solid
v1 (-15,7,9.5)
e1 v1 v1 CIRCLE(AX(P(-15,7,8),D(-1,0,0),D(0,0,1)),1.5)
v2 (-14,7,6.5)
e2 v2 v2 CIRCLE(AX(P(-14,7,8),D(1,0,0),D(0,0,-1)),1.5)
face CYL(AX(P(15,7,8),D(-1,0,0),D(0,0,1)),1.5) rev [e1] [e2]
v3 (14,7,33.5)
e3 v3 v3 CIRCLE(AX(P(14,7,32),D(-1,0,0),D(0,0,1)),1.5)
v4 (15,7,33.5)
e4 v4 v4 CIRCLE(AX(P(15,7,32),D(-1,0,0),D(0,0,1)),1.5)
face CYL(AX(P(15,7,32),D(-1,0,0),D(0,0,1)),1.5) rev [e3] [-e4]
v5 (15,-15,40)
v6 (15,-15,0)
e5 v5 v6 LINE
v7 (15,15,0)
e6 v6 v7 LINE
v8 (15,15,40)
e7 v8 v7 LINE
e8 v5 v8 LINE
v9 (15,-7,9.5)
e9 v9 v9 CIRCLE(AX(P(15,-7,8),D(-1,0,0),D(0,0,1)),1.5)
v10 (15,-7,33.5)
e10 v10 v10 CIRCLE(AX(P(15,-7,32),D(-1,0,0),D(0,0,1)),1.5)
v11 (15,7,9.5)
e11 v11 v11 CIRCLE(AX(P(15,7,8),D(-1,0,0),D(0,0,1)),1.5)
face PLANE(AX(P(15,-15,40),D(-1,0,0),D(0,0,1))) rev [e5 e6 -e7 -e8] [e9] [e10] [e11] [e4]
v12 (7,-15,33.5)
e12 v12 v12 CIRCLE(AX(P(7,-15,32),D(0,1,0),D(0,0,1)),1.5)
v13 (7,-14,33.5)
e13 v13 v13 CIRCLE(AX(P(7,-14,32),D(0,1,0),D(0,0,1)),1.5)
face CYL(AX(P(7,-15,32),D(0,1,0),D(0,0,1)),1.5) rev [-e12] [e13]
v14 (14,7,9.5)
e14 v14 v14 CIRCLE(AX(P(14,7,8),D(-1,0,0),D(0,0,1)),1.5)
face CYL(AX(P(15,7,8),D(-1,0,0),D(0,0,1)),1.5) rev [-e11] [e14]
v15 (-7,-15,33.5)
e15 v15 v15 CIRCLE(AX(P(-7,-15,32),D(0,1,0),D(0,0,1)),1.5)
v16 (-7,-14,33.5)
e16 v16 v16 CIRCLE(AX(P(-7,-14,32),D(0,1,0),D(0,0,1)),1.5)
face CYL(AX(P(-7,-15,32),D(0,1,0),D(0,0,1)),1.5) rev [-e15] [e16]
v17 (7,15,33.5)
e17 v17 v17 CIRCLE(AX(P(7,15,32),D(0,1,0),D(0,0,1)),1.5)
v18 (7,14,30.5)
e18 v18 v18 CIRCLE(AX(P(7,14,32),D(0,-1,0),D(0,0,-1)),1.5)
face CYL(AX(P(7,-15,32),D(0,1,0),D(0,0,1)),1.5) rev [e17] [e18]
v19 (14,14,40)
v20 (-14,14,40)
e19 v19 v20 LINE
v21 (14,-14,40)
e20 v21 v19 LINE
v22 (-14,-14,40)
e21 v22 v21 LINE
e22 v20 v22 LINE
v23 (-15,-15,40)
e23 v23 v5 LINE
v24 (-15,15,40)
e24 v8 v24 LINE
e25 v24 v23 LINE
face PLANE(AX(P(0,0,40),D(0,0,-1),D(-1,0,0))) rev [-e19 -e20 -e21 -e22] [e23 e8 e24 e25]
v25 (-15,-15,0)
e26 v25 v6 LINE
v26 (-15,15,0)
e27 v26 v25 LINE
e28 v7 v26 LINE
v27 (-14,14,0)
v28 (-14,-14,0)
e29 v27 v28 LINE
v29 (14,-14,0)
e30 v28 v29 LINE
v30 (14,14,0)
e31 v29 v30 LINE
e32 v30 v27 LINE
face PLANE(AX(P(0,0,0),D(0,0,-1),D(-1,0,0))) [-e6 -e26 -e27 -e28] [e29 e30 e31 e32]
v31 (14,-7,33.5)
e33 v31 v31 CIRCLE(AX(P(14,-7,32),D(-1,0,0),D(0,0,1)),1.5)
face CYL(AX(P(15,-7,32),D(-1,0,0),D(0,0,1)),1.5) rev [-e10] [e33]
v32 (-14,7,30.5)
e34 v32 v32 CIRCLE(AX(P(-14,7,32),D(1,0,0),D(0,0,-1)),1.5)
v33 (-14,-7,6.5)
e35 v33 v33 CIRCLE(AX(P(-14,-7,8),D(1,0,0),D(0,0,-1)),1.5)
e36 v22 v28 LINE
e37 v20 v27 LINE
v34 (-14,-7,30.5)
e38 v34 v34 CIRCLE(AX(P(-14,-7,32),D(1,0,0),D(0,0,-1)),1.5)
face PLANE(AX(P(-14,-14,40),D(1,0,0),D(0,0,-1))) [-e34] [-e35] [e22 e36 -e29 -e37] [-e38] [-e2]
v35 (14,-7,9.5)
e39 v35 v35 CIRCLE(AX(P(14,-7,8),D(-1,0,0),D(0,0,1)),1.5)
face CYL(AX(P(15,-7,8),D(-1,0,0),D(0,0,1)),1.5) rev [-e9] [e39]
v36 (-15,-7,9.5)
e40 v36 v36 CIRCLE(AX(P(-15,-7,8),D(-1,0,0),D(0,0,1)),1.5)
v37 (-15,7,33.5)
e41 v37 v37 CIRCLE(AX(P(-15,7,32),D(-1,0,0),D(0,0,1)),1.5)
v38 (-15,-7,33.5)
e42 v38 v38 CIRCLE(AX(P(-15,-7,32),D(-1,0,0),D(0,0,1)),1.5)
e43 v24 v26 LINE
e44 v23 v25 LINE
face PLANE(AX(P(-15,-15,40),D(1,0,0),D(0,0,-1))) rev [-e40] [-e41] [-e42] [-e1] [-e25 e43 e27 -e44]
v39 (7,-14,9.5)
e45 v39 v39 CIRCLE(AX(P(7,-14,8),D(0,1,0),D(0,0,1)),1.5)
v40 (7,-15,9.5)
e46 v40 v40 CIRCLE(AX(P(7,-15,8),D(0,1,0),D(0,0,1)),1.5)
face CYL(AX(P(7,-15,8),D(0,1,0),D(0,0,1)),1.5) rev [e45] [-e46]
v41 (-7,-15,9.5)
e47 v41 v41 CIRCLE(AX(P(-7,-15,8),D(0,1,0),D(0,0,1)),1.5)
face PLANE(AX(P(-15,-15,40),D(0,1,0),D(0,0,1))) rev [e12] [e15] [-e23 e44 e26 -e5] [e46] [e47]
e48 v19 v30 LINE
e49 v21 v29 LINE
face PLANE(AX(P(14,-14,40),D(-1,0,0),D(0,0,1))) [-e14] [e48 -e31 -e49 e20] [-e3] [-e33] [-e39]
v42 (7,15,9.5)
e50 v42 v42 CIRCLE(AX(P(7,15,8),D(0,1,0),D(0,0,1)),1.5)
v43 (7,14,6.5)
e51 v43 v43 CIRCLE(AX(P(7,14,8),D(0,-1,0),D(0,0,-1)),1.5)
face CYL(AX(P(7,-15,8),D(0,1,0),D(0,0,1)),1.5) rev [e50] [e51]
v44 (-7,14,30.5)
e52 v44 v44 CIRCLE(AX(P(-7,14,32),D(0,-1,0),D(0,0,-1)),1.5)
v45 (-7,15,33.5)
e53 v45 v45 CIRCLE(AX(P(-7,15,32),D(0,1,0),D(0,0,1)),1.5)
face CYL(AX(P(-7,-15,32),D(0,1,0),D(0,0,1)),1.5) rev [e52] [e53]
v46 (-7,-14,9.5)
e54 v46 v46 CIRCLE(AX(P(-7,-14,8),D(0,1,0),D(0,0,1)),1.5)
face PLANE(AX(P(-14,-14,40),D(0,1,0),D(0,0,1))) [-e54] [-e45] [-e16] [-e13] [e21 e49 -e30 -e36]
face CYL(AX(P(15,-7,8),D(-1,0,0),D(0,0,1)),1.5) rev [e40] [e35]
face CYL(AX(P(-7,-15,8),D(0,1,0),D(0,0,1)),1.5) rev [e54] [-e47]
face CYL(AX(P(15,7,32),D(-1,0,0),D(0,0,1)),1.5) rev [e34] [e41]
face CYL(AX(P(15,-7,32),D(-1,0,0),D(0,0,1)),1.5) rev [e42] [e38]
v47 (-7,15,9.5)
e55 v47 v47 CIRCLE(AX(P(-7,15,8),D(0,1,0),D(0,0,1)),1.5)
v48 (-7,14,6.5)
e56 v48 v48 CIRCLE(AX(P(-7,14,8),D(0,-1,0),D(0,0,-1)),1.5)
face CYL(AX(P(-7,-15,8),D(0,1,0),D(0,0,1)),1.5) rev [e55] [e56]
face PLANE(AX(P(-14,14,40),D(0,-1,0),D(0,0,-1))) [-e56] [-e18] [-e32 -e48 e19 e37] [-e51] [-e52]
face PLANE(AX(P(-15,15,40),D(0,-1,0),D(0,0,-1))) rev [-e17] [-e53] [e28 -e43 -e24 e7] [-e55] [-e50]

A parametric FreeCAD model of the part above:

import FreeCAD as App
import Part
import Sketcher
from FreeCAD import Vector
Q = App.Units.Quantity


def add_polygon(sketch, points):
    """Adds a closed chain of lines whose ends are joined by coincident constraints."""
    first, n = sketch.GeometryCount, len(points)
    for a, b in zip(points, points[1:] + points[:1]):
        sketch.addGeometry(Part.LineSegment(App.Vector(*a, 0), App.Vector(*b, 0)), False)
    for i in range(n):
        sketch.addConstraint(Sketcher.Constraint("Coincident", first + i, 2, first + (i + 1) % n, 1))

doc = App.newDocument("Part")
body = doc.addObject("PartDesign::Body", "Body")

sketch1 = body.newObject("Sketcher::SketchObject", "Sketch")
sketch1.AttachmentSupport = (doc.getObject("XY_Plane"), [""])
sketch1.MapMode = "FlatFace"
add_polygon(sketch1, [(-15, 15), (-15, -15), (15, -15), (15, 15)])
add_polygon(sketch1, [(14, -14), (-14, -14), (-14, 14), (14, 14)])
sketch1.addConstraint(Sketcher.Constraint("Vertical", 0))
sketch1.addConstraint(Sketcher.Constraint("Horizontal", 1))
sketch1.addConstraint(Sketcher.Constraint("Vertical", 2))
sketch1.addConstraint(Sketcher.Constraint("Horizontal", 3))
sketch1.addConstraint(Sketcher.Constraint("Horizontal", 4))
sketch1.addConstraint(Sketcher.Constraint("Vertical", 5))
sketch1.addConstraint(Sketcher.Constraint("Horizontal", 6))
sketch1.addConstraint(Sketcher.Constraint("Vertical", 7))
sketch1.addConstraint(Sketcher.Constraint("Symmetric", 0, 2, 2, 2, -1, 1))
sketch1.addConstraint(Sketcher.Constraint("Symmetric", 4, 2, 6, 2, -1, 1))
sketch1.addConstraint(Sketcher.Constraint("Equal", 3, 0))
sketch1.addConstraint(Sketcher.Constraint("Equal", 6, 5))
sketch1.addConstraint(Sketcher.Constraint("DistanceX", 1, 1, 1, 2, Q("30 mm")))
sketch1.addConstraint(Sketcher.Constraint("DistanceX", 4, 2, 4, 1, Q("28 mm")))
pad1 = body.newObject("PartDesign::Pad", "Pad")
pad1.Profile = sketch1
pad1.Length = 40

sketch2 = body.newObject("Sketcher::SketchObject", "Sketch001")
sketch2.AttachmentSupport = (doc.getObject("YZ_Plane"), [""])
sketch2.MapMode = "FlatFace"
sketch2.AttachmentOffset = App.Placement(Vector(0, 0, -15), App.Rotation())
sketch2.addGeometry(Part.Circle(Vector(-7, 32, 0), Vector(0, 0, 1), 1.5), False)
sketch2.addGeometry(Part.Circle(Vector(-7, 8, 0), Vector(0, 0, 1), 1.5), False)
sketch2.addGeometry(Part.Circle(Vector(7, 32, 0), Vector(0, 0, 1), 1.5), False)
sketch2.addGeometry(Part.Circle(Vector(7, 8, 0), Vector(0, 0, 1), 1.5), False)
sketch2.addConstraint(Sketcher.Constraint("Equal", 0, 1))
sketch2.addConstraint(Sketcher.Constraint("Equal", 1, 2))
sketch2.addConstraint(Sketcher.Constraint("Equal", 2, 3))
sketch2.addConstraint(Sketcher.Constraint("Symmetric", 0, 3, 2, 3, -2))
sketch2.addConstraint(Sketcher.Constraint("Symmetric", 1, 3, 3, 3, -2))
sketch2.addConstraint(Sketcher.Constraint("Vertical", 0, 3, 1, 3))
sketch2.addConstraint(Sketcher.Constraint("Diameter", 0, Q("3 mm")))
sketch2.addConstraint(Sketcher.Constraint("DistanceX", 0, 3, -1, 1, Q("7 mm")))
sketch2.addConstraint(Sketcher.Constraint("DistanceY", -1, 1, 0, 3, Q("32 mm")))
sketch2.addConstraint(Sketcher.Constraint("DistanceY", -1, 1, 1, 3, Q("8 mm")))
pocket1 = body.newObject("PartDesign::Pocket", "Pocket")
pocket1.Profile = sketch2
pocket1.Type = "ThroughAll"
pocket1.Reversed = True

sketch3 = body.newObject("Sketcher::SketchObject", "Sketch002")
sketch3.AttachmentSupport = (doc.getObject("XZ_Plane"), [""])
sketch3.MapMode = "FlatFace"
sketch3.AttachmentOffset = App.Placement(Vector(0, 0, -15), App.Rotation())
sketch3.addGeometry(Part.Circle(Vector(7, 32, 0), Vector(0, 0, 1), 1.5), False)
sketch3.addGeometry(Part.Circle(Vector(-7, 32, 0), Vector(0, 0, 1), 1.5), False)
sketch3.addGeometry(Part.Circle(Vector(7, 8, 0), Vector(0, 0, 1), 1.5), False)
sketch3.addGeometry(Part.Circle(Vector(-7, 8, 0), Vector(0, 0, 1), 1.5), False)
sketch3.addConstraint(Sketcher.Constraint("Equal", 0, 1))
sketch3.addConstraint(Sketcher.Constraint("Equal", 1, 2))
sketch3.addConstraint(Sketcher.Constraint("Equal", 2, 3))
sketch3.addConstraint(Sketcher.Constraint("Symmetric", 0, 3, 1, 3, -2))
sketch3.addConstraint(Sketcher.Constraint("Symmetric", 2, 3, 3, 3, -2))
sketch3.addConstraint(Sketcher.Constraint("Vertical", 0, 3, 2, 3))
sketch3.addConstraint(Sketcher.Constraint("Diameter", 0, Q("3 mm")))
sketch3.addConstraint(Sketcher.Constraint("DistanceX", -1, 1, 0, 3, Q("7 mm")))
sketch3.addConstraint(Sketcher.Constraint("DistanceY", -1, 1, 0, 3, Q("32 mm")))
sketch3.addConstraint(Sketcher.Constraint("DistanceY", -1, 1, 2, 3, Q("8 mm")))
pocket2 = body.newObject("PartDesign::Pocket", "Pocket001")
pocket2.Profile = sketch3
pocket2.Type = "ThroughAll"
pocket2.Reversed = True

doc.recompute()
